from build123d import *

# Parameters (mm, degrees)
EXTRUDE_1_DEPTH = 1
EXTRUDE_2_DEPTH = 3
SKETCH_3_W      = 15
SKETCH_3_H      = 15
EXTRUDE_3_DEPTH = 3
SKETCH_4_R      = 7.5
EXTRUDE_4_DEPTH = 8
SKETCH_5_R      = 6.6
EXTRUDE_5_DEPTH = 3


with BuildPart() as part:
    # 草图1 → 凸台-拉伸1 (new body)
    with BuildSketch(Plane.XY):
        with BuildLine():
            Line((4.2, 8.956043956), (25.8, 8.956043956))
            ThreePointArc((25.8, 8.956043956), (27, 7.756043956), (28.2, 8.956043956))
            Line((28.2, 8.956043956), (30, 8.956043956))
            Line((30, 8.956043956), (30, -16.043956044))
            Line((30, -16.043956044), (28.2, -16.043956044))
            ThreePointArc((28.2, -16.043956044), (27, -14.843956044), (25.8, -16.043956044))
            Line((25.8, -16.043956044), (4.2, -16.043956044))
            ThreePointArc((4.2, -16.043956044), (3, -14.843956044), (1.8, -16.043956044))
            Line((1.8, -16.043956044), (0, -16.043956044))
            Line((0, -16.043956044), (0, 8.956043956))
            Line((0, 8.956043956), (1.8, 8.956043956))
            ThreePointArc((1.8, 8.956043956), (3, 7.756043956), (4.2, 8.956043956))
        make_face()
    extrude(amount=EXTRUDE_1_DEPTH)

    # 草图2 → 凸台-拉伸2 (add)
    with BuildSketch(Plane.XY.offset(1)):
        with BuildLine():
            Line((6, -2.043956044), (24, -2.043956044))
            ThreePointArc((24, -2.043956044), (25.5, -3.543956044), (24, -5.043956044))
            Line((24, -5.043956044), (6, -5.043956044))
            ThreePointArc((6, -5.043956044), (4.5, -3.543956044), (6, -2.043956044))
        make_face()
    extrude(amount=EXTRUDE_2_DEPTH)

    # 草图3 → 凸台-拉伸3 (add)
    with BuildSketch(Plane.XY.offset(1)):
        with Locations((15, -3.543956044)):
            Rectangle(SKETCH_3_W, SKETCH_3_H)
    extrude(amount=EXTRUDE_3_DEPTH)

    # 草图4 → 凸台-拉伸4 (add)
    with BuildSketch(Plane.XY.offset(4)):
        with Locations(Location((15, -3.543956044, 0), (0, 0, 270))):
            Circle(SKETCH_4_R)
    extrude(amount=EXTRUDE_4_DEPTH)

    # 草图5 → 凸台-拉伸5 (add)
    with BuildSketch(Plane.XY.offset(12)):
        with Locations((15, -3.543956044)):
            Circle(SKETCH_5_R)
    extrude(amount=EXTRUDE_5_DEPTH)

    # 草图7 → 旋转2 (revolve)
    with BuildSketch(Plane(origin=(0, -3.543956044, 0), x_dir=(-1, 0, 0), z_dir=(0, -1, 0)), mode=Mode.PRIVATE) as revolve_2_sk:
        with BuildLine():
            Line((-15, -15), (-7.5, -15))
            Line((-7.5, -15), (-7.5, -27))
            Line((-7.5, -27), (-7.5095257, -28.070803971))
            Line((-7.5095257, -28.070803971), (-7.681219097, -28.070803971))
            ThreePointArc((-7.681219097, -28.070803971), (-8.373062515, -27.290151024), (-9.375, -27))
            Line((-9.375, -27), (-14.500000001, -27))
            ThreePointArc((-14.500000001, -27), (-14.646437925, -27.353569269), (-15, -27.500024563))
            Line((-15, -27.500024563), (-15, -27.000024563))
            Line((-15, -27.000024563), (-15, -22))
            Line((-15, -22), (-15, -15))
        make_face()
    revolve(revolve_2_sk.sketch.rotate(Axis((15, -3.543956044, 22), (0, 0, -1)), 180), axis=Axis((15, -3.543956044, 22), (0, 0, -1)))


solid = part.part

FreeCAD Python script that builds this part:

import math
import FreeCAD as App
import Part
import Sketcher

V = App.Vector


def add_polygon(sketch, points):
    """Adds a closed chain of lines whose ends are joined by coincident constraints."""
    first, n = sketch.GeometryCount, len(points)
    for a, b in zip(points, points[1:] + points[:1]):
        sketch.addGeometry(Part.LineSegment(App.Vector(*a, 0), App.Vector(*b, 0)), False)
    for i in range(n):
        sketch.addConstraint(Sketcher.Constraint("Coincident", first + i, 2, first + (i + 1) % n, 1))

doc = App.newDocument("Part")
body = doc.addObject("PartDesign::Body", "Body")

sketch1 = doc.addObject("Sketcher::SketchObject", "Sketch")
body.addObject(sketch1)
sketch1.AttachmentSupport = (doc.XY_Plane, [""])
sketch1.MapMode = "FlatFace"
sketch1.addGeometry([
    Part.LineSegment(V(25.8, 8.956044, 0), V(4.2, 8.956044, 0)),
    Part.ArcOfCircle(Part.Circle(V(3, 8.956044, 0), V(0, 0, 1), 1.2), math.radians(180), math.radians(360)),
    Part.LineSegment(V(1.8, 8.956044, 0), V(0, 8.956044, 0)),
    Part.LineSegment(V(0, 8.956044, 0), V(0, -16.043956, 0)),
    Part.LineSegment(V(0, -16.043956, 0), V(1.8, -16.043956, 0)),
    Part.ArcOfCircle(Part.Circle(V(3, -16.043956, 0), V(0, 0, 1), 1.2), math.radians(0), math.radians(180)),
    Part.LineSegment(V(4.2, -16.043956, 0), V(25.8, -16.043956, 0)),
    Part.ArcOfCircle(Part.Circle(V(27, -16.043956, 0), V(0, 0, 1), 1.2), math.radians(0), math.radians(180)),
    Part.LineSegment(V(28.2, -16.043956, 0), V(30, -16.043956, 0)),
    Part.LineSegment(V(30, -16.043956, 0), V(30, 8.956044, 0)),
    Part.LineSegment(V(30, 8.956044, 0), V(28.2, 8.956044, 0)),
    Part.ArcOfCircle(Part.Circle(V(27, 8.956044, 0), V(0, 0, 1), 1.2), math.radians(180), math.radians(360)),
], False)
sketch1.addConstraint([
    Sketcher.Constraint("Coincident", 0, 2, 1, 2),
    Sketcher.Constraint("Coincident", 1, 1, 2, 1),
    Sketcher.Constraint("Coincident", 2, 2, 3, 1),
    Sketcher.Constraint("Coincident", 3, 2, 4, 1),
    Sketcher.Constraint("Coincident", 4, 2, 5, 2),
    Sketcher.Constraint("Coincident", 5, 1, 6, 1),
    Sketcher.Constraint("Coincident", 6, 2, 7, 2),
    Sketcher.Constraint("Coincident", 7, 1, 8, 1),
    Sketcher.Constraint("Coincident", 8, 2, 9, 1),
    Sketcher.Constraint("Coincident", 9, 2, 10, 1),
    Sketcher.Constraint("Coincident", 10, 2, 11, 2),
    Sketcher.Constraint("Coincident", 11, 1, 0, 1),
    Sketcher.Constraint("Horizontal", 0),
    Sketcher.Constraint("Horizontal", 2),
    Sketcher.Constraint("Vertical", 3),
    Sketcher.Constraint("Horizontal", 4),
    Sketcher.Constraint("Horizontal", 6),
    Sketcher.Constraint("Horizontal", 8),
    Sketcher.Constraint("Vertical", 9),
    Sketcher.Constraint("Horizontal", 10),
    Sketcher.Constraint("Equal", 1, 5),
    Sketcher.Constraint("Equal", 5, 7),
    Sketcher.Constraint("Equal", 7, 11),
    Sketcher.Constraint("PointOnObject", 2, 2, -2),
    Sketcher.Constraint("Horizontal", 5, 3, 7, 3),
    Sketcher.Constraint("Horizontal", 1, 3, 11, 3),
    Sketcher.Constraint("Horizontal", 11, 3, 0, 2),
    Sketcher.Constraint("Horizontal", 0, 2, 1, 1),
    Sketcher.Constraint("Horizontal", 7, 3, 3, 2),
    Sketcher.Constraint("Horizontal", 4, 2, 5, 1),
    Sketcher.Constraint("Horizontal", 6, 2, 7, 1),
    Sketcher.Constraint("Horizontal", 2, 2, 9, 2),
    Sketcher.Constraint("Vertical", 1, 3, 5, 3),
    Sketcher.Constraint("Vertical", 7, 3, 11, 3),
    Sketcher.Constraint("Equal", 4, 8),
    Sketcher.Constraint("Radius", 1, 1.2),
    Sketcher.Constraint("DistanceY", 3, 2, 3, 1, 25.0),
    Sketcher.Constraint("DistanceX", 0, 2, 0, 1, 21.6),
    Sketcher.Constraint("DistanceX", 2, 2, 2, 1, 1.8),
    Sketcher.Constraint("DistanceY", -1, 1, 1, 3, 8.956044),
])
pad1 = doc.addObject("PartDesign::Pad", "Pad")
body.addObject(pad1)
pad1.Profile = sketch1
pad1.Length = 1

sketch2 = doc.addObject("Sketcher::SketchObject", "Sketch001")
body.addObject(sketch2)
sketch2.AttachmentSupport = (doc.XY_Plane, [""])
sketch2.MapMode = "FlatFace"
sketch2.AttachmentOffset = App.Placement(V(0, 0, 1), App.Rotation())
sketch2.addGeometry([
    Part.LineSegment(V(24, -2.043956, 0), V(6, -2.043956, 0)),
    Part.ArcOfCircle(Part.Circle(V(6, -3.543956, 0), V(0, 0, 1), 1.5), math.radians(90), math.radians(270)),
    Part.LineSegment(V(6, -5.043956, 0), V(24, -5.043956, 0)),
    Part.ArcOfCircle(Part.Circle(V(24, -3.543956, 0), V(0, 0, 1), 1.5), math.radians(-90), math.radians(90)),
], False)
sketch2.addConstraint([
    Sketcher.Constraint("Tangent", 0, 2, 1, 1),
    Sketcher.Constraint("Tangent", 1, 2, 2, 1),
    Sketcher.Constraint("Tangent", 2, 2, 3, 1),
    Sketcher.Constraint("Tangent", 3, 2, 0, 1),
    Sketcher.Constraint("Horizontal", 0),
    Sketcher.Constraint("Horizontal", 2),
    Sketcher.Constraint("Radius", 1, 1.5),
    Sketcher.Constraint("DistanceX", 0, 2, 0, 1, 18.0),
    Sketcher.Constraint("DistanceX", -1, 1, 1, 3, 6.0),
    Sketcher.Constraint("DistanceY", 1, 3, -1, 1, 3.543956),
])
pad2 = doc.addObject("PartDesign::Pad", "Pad001")
body.addObject(pad2)
pad2.Profile = sketch2
pad2.Length = 3

sketch3 = doc.addObject("Sketcher::SketchObject", "Sketch002")
body.addObject(sketch3)
sketch3.AttachmentSupport = (doc.XY_Plane, [""])
sketch3.MapMode = "FlatFace"
sketch3.AttachmentOffset = App.Placement(V(0, 0, 1), App.Rotation())
add_polygon(sketch3, [(7.5, 3.956044), (7.5, -11.043956), (22.5, -11.043956), (22.5, 3.956044)])
sketch3.addConstraint([
    Sketcher.Constraint("Vertical", 0),
    Sketcher.Constraint("Horizontal", 1),
    Sketcher.Constraint("Vertical", 2),
    Sketcher.Constraint("Horizontal", 3),
    Sketcher.Constraint("Equal", 3, 0),
    Sketcher.Constraint("DistanceX", 1, 1, 1, 2, 15.0),
    Sketcher.Constraint("DistanceX", -1, 1, 0, 2, 7.5),
    Sketcher.Constraint("DistanceY", 0, 2, -1, 1, 11.043956),
])
pad3 = doc.addObject("PartDesign::Pad", "Pad002")
body.addObject(pad3)
pad3.Profile = sketch3
pad3.Length = 3

sketch4 = doc.addObject("Sketcher::SketchObject", "Sketch003")
body.addObject(sketch4)
sketch4.AttachmentSupport = (doc.XY_Plane, [""])
sketch4.MapMode = "FlatFace"
sketch4.AttachmentOffset = App.Placement(V(0, 0, 4), App.Rotation())
sketch4.addGeometry(Part.Circle(V(15, -3.543956, 0), V(0, 0, 1), 7.5), False)
sketch4.addConstraint([
    Sketcher.Constraint("Diameter", 0, 15.0),
    Sketcher.Constraint("DistanceX", -1, 1, 0, 3, 15.0),
    Sketcher.Constraint("DistanceY", 0, 3, -1, 1, 3.543956),
])
pad4 = doc.addObject("PartDesign::Pad", "Pad003")
body.addObject(pad4)
pad4.Profile = sketch4
pad4.Length = 8

sketch5 = doc.addObject("Sketcher::SketchObject", "Sketch004")
body.addObject(sketch5)
sketch5.AttachmentSupport = (doc.XY_Plane, [""])
sketch5.MapMode = "FlatFace"
sketch5.AttachmentOffset = App.Placement(V(0, 0, 12), App.Rotation())
sketch5.addGeometry(Part.Circle(V(15, -3.543956, 0), V(0, 0, 1), 6.6), False)
sketch5.addConstraint([
    Sketcher.Constraint("Diameter", 0, 13.2),
    Sketcher.Constraint("DistanceX", -1, 1, 0, 3, 15.0),
    Sketcher.Constraint("DistanceY", 0, 3, -1, 1, 3.543956),
])
pad5 = doc.addObject("PartDesign::Pad", "Pad004")
body.addObject(pad5)
pad5.Profile = sketch5
pad5.Length = 3

sketch6 = doc.addObject("Sketcher::SketchObject", "Sketch005")
body.addObject(sketch6)
sketch6.AttachmentSupport = (doc.XZ_Plane, [""])
sketch6.MapMode = "FlatFace"
sketch6.AttachmentOffset = App.Placement(V(0, 0, 3.543956), App.Rotation())
sketch6.addGeometry([
    Part.LineSegment(V(7.5, 15, 0), V(15, 15, 0)),
    Part.LineSegment(V(15, 15, 0), V(15, 27.500025, 0)),
    Part.ArcOfCircle(Part.Circle(V(15, 27.000025, 0), V(0, 0, 1), 0.5), math.radians(90), math.radians(180.002815)),
    Part.LineSegment(V(14.5, 27, 0), V(9.375, 27, 0)),
    Part.ArcOfCircle(Part.Circle(V(9.375, 28.875, 0), V(0, 0, 1), 1.875), math.radians(-154.60194), math.radians(-90)),
    Part.LineSegment(V(7.681219, 28.070804, 0), V(7.509526, 28.070804, 0)),
    Part.LineSegment(V(7.509526, 28.070804, 0), V(7.5, 27, 0)),
    Part.LineSegment(V(7.5, 27, 0), V(7.5, 15, 0)),
], False)
sketch6.addGeometry(Part.LineSegment(V(15, 28.875, 0), V(15, 15, 0)), True)
sketch6.addConstraint([
    Sketcher.Constraint("Coincident", 0, 2, 1, 1),
    Sketcher.Constraint("Coincident", 1, 2, 2, 1),
    Sketcher.Constraint("Coincident", 2, 2, 3, 1),
    Sketcher.Constraint("Tangent", 3, 2, 4, 2),
    Sketcher.Constraint("Coincident", 4, 1, 5, 1),
    Sketcher.Constraint("Coincident", 5, 2, 6, 1),
    Sketcher.Constraint("Coincident", 6, 2, 7, 1),
    Sketcher.Constraint("Coincident", 7, 2, 0, 1),
    Sketcher.Constraint("Horizontal", 0),
    Sketcher.Constraint("Vertical", 1),
    Sketcher.Constraint("Horizontal", 3),
    Sketcher.Constraint("Horizontal", 5),
    Sketcher.Constraint("Vertical", 7),
    Sketcher.Constraint("Vertical", 8),
    Sketcher.Constraint("Coincident", 8, 2, 0, 2),
    Sketcher.Constraint("Horizontal", 3, 2, 6, 2),
    Sketcher.Constraint("Horizontal", 4, 3, 8, 1),
    Sketcher.Constraint("Vertical", 2, 3, 0, 2),
    Sketcher.Constraint("Radius", 2, 0.5),
    Sketcher.Constraint("DistanceY", 7, 2, 7, 1, 12.0),
    Sketcher.Constraint("DistanceX", 0, 1, 0, 2, 7.5),
    Sketcher.Constraint("DistanceX", -1, 1, 2, 3, 15.0),
    Sketcher.Constraint("DistanceY", -1, 1, 0, 2, 15.0),
    Sketcher.Constraint("Radius", 4, 1.875),
    Sketcher.Constraint("DistanceX", 3, 2, 3, 1, 5.125),
    Sketcher.Constraint("DistanceX", 5, 2, 5, 1, 0.171693),
    Sketcher.Constraint("DistanceY", 1, 1, 1, 2, 12.500025),
    Sketcher.Constraint("DistanceX", -1, 1, 4, 1, 7.681219),
])
revolution = doc.addObject("PartDesign::Revolution", "Revolution")
body.addObject(revolution)
revolution.Profile = sketch6
revolution.ReferenceAxis = (sketch6, ["Axis0"])
revolution.Angle = 360

doc.recompute()
